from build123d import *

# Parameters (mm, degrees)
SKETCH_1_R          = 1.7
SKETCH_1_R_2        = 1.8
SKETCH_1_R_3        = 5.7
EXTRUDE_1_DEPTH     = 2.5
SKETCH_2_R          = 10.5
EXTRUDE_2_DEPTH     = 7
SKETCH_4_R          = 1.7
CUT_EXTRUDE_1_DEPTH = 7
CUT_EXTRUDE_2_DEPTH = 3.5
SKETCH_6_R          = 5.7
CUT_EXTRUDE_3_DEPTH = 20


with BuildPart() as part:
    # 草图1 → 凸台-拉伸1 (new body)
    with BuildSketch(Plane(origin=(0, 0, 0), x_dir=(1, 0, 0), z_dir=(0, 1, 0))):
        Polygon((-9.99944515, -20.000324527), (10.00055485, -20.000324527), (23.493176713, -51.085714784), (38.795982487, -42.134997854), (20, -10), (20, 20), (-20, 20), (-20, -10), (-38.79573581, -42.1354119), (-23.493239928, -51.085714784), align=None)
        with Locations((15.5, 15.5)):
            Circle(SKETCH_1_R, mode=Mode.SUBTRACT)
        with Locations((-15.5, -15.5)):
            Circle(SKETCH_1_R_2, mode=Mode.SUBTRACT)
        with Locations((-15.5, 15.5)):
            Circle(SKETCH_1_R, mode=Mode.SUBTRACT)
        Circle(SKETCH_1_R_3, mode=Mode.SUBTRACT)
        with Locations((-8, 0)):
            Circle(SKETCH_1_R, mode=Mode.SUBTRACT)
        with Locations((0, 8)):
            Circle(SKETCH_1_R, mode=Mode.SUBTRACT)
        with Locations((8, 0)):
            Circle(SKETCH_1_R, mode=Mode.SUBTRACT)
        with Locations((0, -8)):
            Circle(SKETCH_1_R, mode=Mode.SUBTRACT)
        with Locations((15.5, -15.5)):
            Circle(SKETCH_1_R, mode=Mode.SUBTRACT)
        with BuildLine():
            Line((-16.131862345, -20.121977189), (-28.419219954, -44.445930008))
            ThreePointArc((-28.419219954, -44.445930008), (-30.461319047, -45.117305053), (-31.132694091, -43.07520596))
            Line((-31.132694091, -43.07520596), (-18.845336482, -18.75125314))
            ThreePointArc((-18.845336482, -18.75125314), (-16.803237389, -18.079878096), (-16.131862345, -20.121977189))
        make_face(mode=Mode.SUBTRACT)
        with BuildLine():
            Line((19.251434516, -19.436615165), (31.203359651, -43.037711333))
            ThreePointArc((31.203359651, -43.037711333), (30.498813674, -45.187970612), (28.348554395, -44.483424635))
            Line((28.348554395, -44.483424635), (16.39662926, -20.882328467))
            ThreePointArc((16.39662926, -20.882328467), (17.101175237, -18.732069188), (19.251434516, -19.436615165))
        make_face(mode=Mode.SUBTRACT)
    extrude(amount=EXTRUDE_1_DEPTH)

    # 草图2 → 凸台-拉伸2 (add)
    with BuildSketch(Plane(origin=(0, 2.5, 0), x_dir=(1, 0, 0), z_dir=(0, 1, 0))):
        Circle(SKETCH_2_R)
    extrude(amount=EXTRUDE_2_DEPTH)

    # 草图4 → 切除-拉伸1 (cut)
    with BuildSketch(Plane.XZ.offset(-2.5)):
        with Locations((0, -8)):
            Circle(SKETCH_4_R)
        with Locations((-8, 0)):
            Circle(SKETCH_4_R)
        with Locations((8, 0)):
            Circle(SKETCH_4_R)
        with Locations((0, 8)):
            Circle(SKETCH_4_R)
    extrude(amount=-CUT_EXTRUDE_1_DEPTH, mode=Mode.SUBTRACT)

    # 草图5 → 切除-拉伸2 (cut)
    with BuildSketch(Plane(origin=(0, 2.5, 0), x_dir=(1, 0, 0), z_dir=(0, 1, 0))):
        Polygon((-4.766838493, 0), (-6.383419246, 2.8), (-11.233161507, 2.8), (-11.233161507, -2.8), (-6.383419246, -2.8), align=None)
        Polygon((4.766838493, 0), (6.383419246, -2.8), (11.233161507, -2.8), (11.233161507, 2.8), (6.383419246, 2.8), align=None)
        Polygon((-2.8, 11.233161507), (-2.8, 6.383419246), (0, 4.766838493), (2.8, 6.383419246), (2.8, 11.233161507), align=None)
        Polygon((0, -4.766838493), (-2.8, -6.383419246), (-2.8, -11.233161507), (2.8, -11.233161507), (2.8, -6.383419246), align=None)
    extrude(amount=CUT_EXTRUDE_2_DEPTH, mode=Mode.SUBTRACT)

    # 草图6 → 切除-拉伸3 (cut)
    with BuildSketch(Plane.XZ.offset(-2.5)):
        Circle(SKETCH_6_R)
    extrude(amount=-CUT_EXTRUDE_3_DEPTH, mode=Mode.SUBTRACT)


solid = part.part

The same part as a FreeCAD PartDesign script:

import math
import FreeCAD as App
import Part
import Sketcher
from FreeCAD import Vector
Q = App.Units.Quantity


def add_polygon(sketch, points):
    """Adds a closed chain of lines whose ends are joined by coincident constraints."""
    first, n = sketch.GeometryCount, len(points)
    for a, b in zip(points, points[1:] + points[:1]):
        sketch.addGeometry(Part.LineSegment(App.Vector(*a, 0), App.Vector(*b, 0)), False)
    for i in range(n):
        sketch.addConstraint(Sketcher.Constraint("Coincident", first + i, 2, first + (i + 1) % n, 1))

doc = App.newDocument("Part")
body = doc.addObject("PartDesign::Body", "Body")

sketch1 = body.newObject("Sketcher::SketchObject", "Sketch")
sketch1.AttachmentSupport = (doc.getObject("XZ_Plane"), [""])
sketch1.MapMode = "FlatFace"
add_polygon(sketch1, [(-10, 20), (10, 20), (23.5, 51.1), (38.8, 42.1), (20, 10), (20, -20), (-20, -20), (-20, 10), (-38.8, 42.1), (-23.5, 51.1)])
sketch1.addGeometry(Part.ArcOfCircle(Part.Circle(Vector(-17.5, 19.4, 0), Vector(0, 0, 1), 1.5), math.radians(-153), math.radians(27)), False)
sketch1.addGeometry(Part.LineSegment(Vector(-16.1, 20.1, 0), Vector(-28.4, 44.4, 0)), False)
sketch1.addGeometry(Part.ArcOfCircle(Part.Circle(Vector(-29.8, 43.8, 0), Vector(0, 0, 1), 1.5), math.radians(27), math.radians(207)), False)
sketch1.addGeometry(Part.LineSegment(Vector(-31.1, 43.1, 0), Vector(-18.8, 18.8, 0)), False)
sketch1.addGeometry(Part.Circle(Vector(-15.5, 15.5, 0), Vector(0, 0, 1), 1.8), False)
sketch1.addGeometry(Part.ArcOfCircle(Part.Circle(Vector(17.8, 20.2, 0), Vector(0, 0, 1), 1.6), math.radians(153), math.radians(333)), False)
sketch1.addGeometry(Part.LineSegment(Vector(19.3, 19.4, 0), Vector(31.2, 43, 0)), False)
sketch1.addGeometry(Part.ArcOfCircle(Part.Circle(Vector(29.8, 43.8, 0), Vector(0, 0, 1), 1.6), math.radians(-27), math.radians(153)), False)
sketch1.addGeometry(Part.LineSegment(Vector(28.3, 44.5, 0), Vector(16.4, 20.9, 0)), False)
sketch1.addGeometry(Part.Circle(Vector(15.5, 15.5, 0), Vector(0, 0, 1), 1.7), False)
sketch1.addGeometry(Part.Circle(Vector(0, 8, 0), Vector(0, 0, 1), 1.7), False)
sketch1.addGeometry(Part.Circle(Vector(-8, 0, 0), Vector(0, 0, 1), 1.7), False)
sketch1.addGeometry(Part.Circle(Vector(0, 0, 0), Vector(0, 0, 1), 5.7), False)
sketch1.addGeometry(Part.Circle(Vector(0, -8, 0), Vector(0, 0, 1), 1.7), False)
sketch1.addGeometry(Part.Circle(Vector(-15.5, -15.5, 0), Vector(0, 0, 1), 1.7), False)
sketch1.addGeometry(Part.Circle(Vector(8, 0, 0), Vector(0, 0, 1), 1.7), False)
sketch1.addGeometry(Part.Circle(Vector(15.5, -15.5, 0), Vector(0, 0, 1), 1.7), False)
sketch1.addConstraint(Sketcher.Constraint("Tangent", 10, 2, 11, 1))
sketch1.addConstraint(Sketcher.Constraint("Tangent", 11, 2, 12, 1))
sketch1.addConstraint(Sketcher.Constraint("Tangent", 12, 2, 13, 1))
sketch1.addConstraint(Sketcher.Constraint("Tangent", 13, 2, 10, 1))
sketch1.addConstraint(Sketcher.Constraint("Tangent", 15, 2, 16, 1))
sketch1.addConstraint(Sketcher.Constraint("Tangent", 16, 2, 17, 1))
sketch1.addConstraint(Sketcher.Constraint("Tangent", 17, 2, 18, 1))
sketch1.addConstraint(Sketcher.Constraint("Tangent", 18, 2, 15, 1))
sketch1.addConstraint(Sketcher.Constraint("Horizontal", 0))
sketch1.addConstraint(Sketcher.Constraint("Vertical", 4))
sketch1.addConstraint(Sketcher.Constraint("Horizontal", 5))
sketch1.addConstraint(Sketcher.Constraint("Vertical", 6))
sketch1.addConstraint(Sketcher.Constraint("Coincident", 22, 3, -1, 1))
sketch1.addConstraint(Sketcher.Constraint("Equal", 10, 12))
sketch1.addConstraint(Sketcher.Constraint("Equal", 15, 17))
sketch1.addConstraint(Sketcher.Constraint("Equal", 19, 20))
sketch1.addConstraint(Sketcher.Constraint("Equal", 20, 21))
sketch1.addConstraint(Sketcher.Constraint("Equal", 21, 23))
sketch1.addConstraint(Sketcher.Constraint("Equal", 23, 24))
sketch1.addConstraint(Sketcher.Constraint("Equal", 24, 25))
sketch1.addConstraint(Sketcher.Constraint("Equal", 25, 26))
sketch1.addConstraint(Sketcher.Constraint("Symmetric", 20, 3, 23, 3, -1, 1))
sketch1.addConstraint(Sketcher.Constraint("Symmetric", 19, 3, 24, 3, -1, 1))
sketch1.addConstraint(Sketcher.Constraint("Symmetric", 21, 3, 25, 3, -1, 1))
sketch1.addConstraint(Sketcher.Constraint("Symmetric", 14, 3, 26, 3, -1, 1))
sketch1.addConstraint(Sketcher.Constraint("Symmetric", 12, 3, 17, 3, -2))
sketch1.addConstraint(Sketcher.Constraint("Symmetric", 14, 3, 19, 3, -2))
sketch1.addConstraint(Sketcher.Constraint("Symmetric", 3, 2, 6, 2, -2))
sketch1.addConstraint(Sketcher.Constraint("PointOnObject", 20, 3, -2))
sketch1.addConstraint(Sketcher.Constraint("PointOnObject", 21, 3, -1))
sketch1.addConstraint(Sketcher.Constraint("Perpendicular", 2, 3))
sketch1.addConstraint(Sketcher.Constraint("Perpendicular", 7, 8))
sketch1.addConstraint(Sketcher.Constraint("Horizontal", 1, 2, 8, 2))
sketch1.addConstraint(Sketcher.Constraint("Horizontal", 10, 3, 15, 2))
sketch1.addConstraint(Sketcher.Constraint("Diameter", 14, Q("3.6 mm")))
sketch1.addConstraint(Sketcher.Constraint("Diameter", 19, Q("3.4 mm")))
sketch1.addConstraint(Sketcher.Constraint("Diameter", 22, Q("11.4 mm")))
sketch1.addConstraint(Sketcher.Constraint("Radius", 15, Q("1.6 mm")))
sketch1.addConstraint(Sketcher.Constraint("DistanceX", 0, 1, 0, 2, Q("20 mm")))
sketch1.addConstraint(Sketcher.Constraint("DistanceX", 5, 2, 5, 1, Q("40 mm")))
sketch1.addConstraint(Sketcher.Constraint("DistanceY", 4, 2, 4, 1, Q("30 mm")))
sketch1.addConstraint(Sketcher.Constraint("DistanceY", -1, 1, 20, 3, Q("8 mm")))
sketch1.addConstraint(Sketcher.Constraint("DistanceX", 21, 3, -1, 1, Q("8 mm")))
sketch1.addConstraint(Sketcher.Constraint("DistanceY", -1, 1, 3, 2, Q("10 mm")))
sketch1.addConstraint(Sketcher.Constraint("DistanceX", 14, 3, 19, 3, Q("31 mm")))
sketch1.addConstraint(Sketcher.Constraint("DistanceY", 24, 3, 14, 3, Q("31 mm")))
sketch1.addConstraint(Sketcher.Constraint("Radius", 10, Q("1.520019 mm")))
sketch1.addConstraint(Sketcher.Constraint("DistanceX", 10, 3, -1, 1, Q("17.488599 mm")))
sketch1.addConstraint(Sketcher.Constraint("DistanceY", 10, 3, 8, 2, Q("31.6491 mm")))
sketch1.addConstraint(Sketcher.Constraint("Distance", 2, Q("17.72826 mm")))
sketch1.addConstraint(Sketcher.Constraint("Distance", 3, Q("37.22831 mm")))
sketch1.addConstraint(Sketcher.Constraint("Distance", 11, Q("27.251309 mm")))
sketch1.addConstraint(Sketcher.Constraint("DistanceX", -1, 1, 15, 3, Q("17.824032 mm")))
sketch1.addConstraint(Sketcher.Constraint("DistanceY", -1, 1, 15, 3, Q("20.159472 mm")))
sketch1.addConstraint(Sketcher.Constraint("DistanceY", -1, 1, 7, 2, Q("42.135412 mm")))
sketch1.addConstraint(Sketcher.Constraint("DistanceX", 8, 2, -1, 1, Q("23.49324 mm")))
sketch1.addConstraint(Sketcher.Constraint("DistanceX", 11, 2, -1, 1, Q("28.41922 mm")))
sketch1.addConstraint(Sketcher.Constraint("DistanceX", 0, 2, 1, 2, Q("13.492622 mm")))
sketch1.addConstraint(Sketcher.Constraint("DistanceY", 0, 2, 1, 2, Q("31.08539 mm")))
pad1 = body.newObject("PartDesign::Pad", "Pad")
pad1.Profile = sketch1
pad1.Length = 2.5
pad1.Reversed = True

sketch2 = body.newObject("Sketcher::SketchObject", "Sketch001")
sketch2.AttachmentSupport = (doc.getObject("XZ_Plane"), [""])
sketch2.MapMode = "FlatFace"
sketch2.AttachmentOffset = App.Placement(Vector(0, 0, -2.5), App.Rotation())
sketch2.addGeometry(Part.Circle(Vector(0, 0, 0), Vector(0, 0, 1), 10), False)
sketch2.addConstraint(Sketcher.Constraint("Coincident", 0, 3, -1, 1))
sketch2.addConstraint(Sketcher.Constraint("Diameter", 0, Q("21 mm")))
pad2 = body.newObject("PartDesign::Pad", "Pad001")
pad2.Profile = sketch2
pad2.Length = 7
pad2.Reversed = True

sketch3 = body.newObject("Sketcher::SketchObject", "Sketch002")
sketch3.AttachmentSupport = (doc.getObject("XZ_Plane"), [""])
sketch3.MapMode = "FlatFace"
sketch3.AttachmentOffset = App.Placement(Vector(0, 0, -2.5), App.Rotation())
sketch3.addGeometry(Part.Circle(Vector(0, -8, 0), Vector(0, 0, 1), 1.7), False)
sketch3.addGeometry(Part.Circle(Vector(-8, 0, 0), Vector(0, 0, 1), 1.7), False)
sketch3.addGeometry(Part.Circle(Vector(8, 0, 0), Vector(0, 0, 1), 1.7), False)
sketch3.addGeometry(Part.Circle(Vector(0, 8, 0), Vector(0, 0, 1), 1.7), False)
sketch3.addConstraint(Sketcher.Constraint("Equal", 0, 1))
sketch3.addConstraint(Sketcher.Constraint("Equal", 1, 2))
sketch3.addConstraint(Sketcher.Constraint("Equal", 2, 3))
sketch3.addConstraint(Sketcher.Constraint("Symmetric", 1, 3, 2, 3, -1, 1))
sketch3.addConstraint(Sketcher.Constraint("Symmetric", 0, 3, 3, 3, -1, 1))
sketch3.addConstraint(Sketcher.Constraint("PointOnObject", 0, 3, -2))
sketch3.addConstraint(Sketcher.Constraint("PointOnObject", 1, 3, -1))
sketch3.addConstraint(Sketcher.Constraint("Diameter", 0, Q("3.4 mm")))
sketch3.addConstraint(Sketcher.Constraint("DistanceY", 0, 3, -1, 1, Q("8 mm")))
sketch3.addConstraint(Sketcher.Constraint("DistanceX", 1, 3, -1, 1, Q("8 mm")))
pocket1 = body.newObject("PartDesign::Pocket", "Pocket")
pocket1.Profile = sketch3
pocket1.Length = 7

sketch4 = body.newObject("Sketcher::SketchObject", "Sketch003")
sketch4.AttachmentSupport = (doc.getObject("XZ_Plane"), [""])
sketch4.MapMode = "FlatFace"
sketch4.AttachmentOffset = App.Placement(Vector(0, 0, -2.5), App.Rotation())
add_polygon(sketch4, [(-4.8, 0), (-6.4, -2.8), (-11.2, -2.8), (-11.2, 2.8), (-6.4, 2.8)])
add_polygon(sketch4, [(4.8, 0), (6.4, 2.8), (11.2, 2.8), (11.2, -2.8), (6.4, -2.8)])
add_polygon(sketch4, [(-2.8, -11.2), (-2.8, -6.4), (0, -4.8), (2.8, -6.4), (2.8, -11.2)])
add_polygon(sketch4, [(0, 4.8), (-2.8, 6.4), (-2.8, 11.2), (2.8, 11.2), (2.8, 6.4)])
sketch4.addConstraint(Sketcher.Constraint("Horizontal", 1))
sketch4.addConstraint(Sketcher.Constraint("Vertical", 2))
sketch4.addConstraint(Sketcher.Constraint("Horizontal", 3))
sketch4.addConstraint(Sketcher.Constraint("Horizontal", 6))
sketch4.addConstraint(Sketcher.Constraint("Vertical", 7))
sketch4.addConstraint(Sketcher.Constraint("Horizontal", 8))
sketch4.addConstraint(Sketcher.Constraint("Vertical", 10))
sketch4.addConstraint(Sketcher.Constraint("Vertical", 13))
sketch4.addConstraint(Sketcher.Constraint("Horizontal", 14))
sketch4.addConstraint(Sketcher.Constraint("Vertical", 16))
sketch4.addConstraint(Sketcher.Constraint("Horizontal", 17))
sketch4.addConstraint(Sketcher.Constraint("Vertical", 18))
sketch4.addConstraint(Sketcher.Constraint("Symmetric", 0, 2, 5, 2, -1, 1))
sketch4.addConstraint(Sketcher.Constraint("Symmetric", 2, 2, 7, 2, -1, 1))
sketch4.addConstraint(Sketcher.Constraint("Symmetric", 4, 2, 9, 2, -1, 1))
sketch4.addConstraint(Sketcher.Constraint("Symmetric", 12, 2, 15, 2, -1, 1))
sketch4.addConstraint(Sketcher.Constraint("Symmetric", 14, 2, 17, 2, -1, 1))
sketch4.addConstraint(Sketcher.Constraint("Symmetric", 11, 2, 19, 2, -1, 1))
sketch4.addConstraint(Sketcher.Constraint("Symmetric", 3, 2, 5, 2, -2))
sketch4.addConstraint(Sketcher.Constraint("Symmetric", 10, 2, 12, 2, -2))
sketch4.addConstraint(Sketcher.Constraint("PointOnObject", 4, 2, -1))
sketch4.addConstraint(Sketcher.Constraint("PointOnObject", 11, 2, -2))
sketch4.addConstraint(Sketcher.Constraint("Parallel", 4, 9))
sketch4.addConstraint(Sketcher.Constraint("Perpendicular", 9, 11))
sketch4.addConstraint(Sketcher.Constraint("Parallel", 11, 19))
sketch4.addConstraint(Sketcher.Constraint("Equal", 17, 2))
sketch4.addConstraint(Sketcher.Constraint("Equal", 8, 10))
sketch4.addConstraint(Sketcher.Constraint("Angle", 0, Q("-120 deg")))
sketch4.addConstraint(Sketcher.Constraint("DistanceX", 14, 2, 14, 1, Q("5.6 mm")))
sketch4.addConstraint(Sketcher.Constraint("DistanceX", 4, 2, 6, 2, Q("16 mm")))
sketch4.addConstraint(Sketcher.Constraint("DistanceX", 1, 2, 1, 1, Q("4.849742 mm")))
sketch4.addConstraint(Sketcher.Constraint("DistanceY", 10, 2, -1, 1, Q("6.383419 mm")))
pocket2 = body.newObject("PartDesign::Pocket", "Pocket001")
pocket2.Profile = sketch4
pocket2.Length = 3.5

sketch5 = body.newObject("Sketcher::SketchObject", "Sketch004")
sketch5.AttachmentSupport = (doc.getObject("XZ_Plane"), [""])
sketch5.MapMode = "FlatFace"
sketch5.AttachmentOffset = App.Placement(Vector(0, 0, -2.5), App.Rotation())
sketch5.addGeometry(Part.Circle(Vector(0, 0, 0), Vector(0, 0, 1), 6), False)
sketch5.addConstraint(Sketcher.Constraint("Coincident", 0, 3, -1, 1))
sketch5.addConstraint(Sketcher.Constraint("Diameter", 0, Q("11.4 mm")))
pocket3 = body.newObject("PartDesign::Pocket", "Pocket002")
pocket3.Profile = sketch5
pocket3.Length = 20

doc.recompute()
